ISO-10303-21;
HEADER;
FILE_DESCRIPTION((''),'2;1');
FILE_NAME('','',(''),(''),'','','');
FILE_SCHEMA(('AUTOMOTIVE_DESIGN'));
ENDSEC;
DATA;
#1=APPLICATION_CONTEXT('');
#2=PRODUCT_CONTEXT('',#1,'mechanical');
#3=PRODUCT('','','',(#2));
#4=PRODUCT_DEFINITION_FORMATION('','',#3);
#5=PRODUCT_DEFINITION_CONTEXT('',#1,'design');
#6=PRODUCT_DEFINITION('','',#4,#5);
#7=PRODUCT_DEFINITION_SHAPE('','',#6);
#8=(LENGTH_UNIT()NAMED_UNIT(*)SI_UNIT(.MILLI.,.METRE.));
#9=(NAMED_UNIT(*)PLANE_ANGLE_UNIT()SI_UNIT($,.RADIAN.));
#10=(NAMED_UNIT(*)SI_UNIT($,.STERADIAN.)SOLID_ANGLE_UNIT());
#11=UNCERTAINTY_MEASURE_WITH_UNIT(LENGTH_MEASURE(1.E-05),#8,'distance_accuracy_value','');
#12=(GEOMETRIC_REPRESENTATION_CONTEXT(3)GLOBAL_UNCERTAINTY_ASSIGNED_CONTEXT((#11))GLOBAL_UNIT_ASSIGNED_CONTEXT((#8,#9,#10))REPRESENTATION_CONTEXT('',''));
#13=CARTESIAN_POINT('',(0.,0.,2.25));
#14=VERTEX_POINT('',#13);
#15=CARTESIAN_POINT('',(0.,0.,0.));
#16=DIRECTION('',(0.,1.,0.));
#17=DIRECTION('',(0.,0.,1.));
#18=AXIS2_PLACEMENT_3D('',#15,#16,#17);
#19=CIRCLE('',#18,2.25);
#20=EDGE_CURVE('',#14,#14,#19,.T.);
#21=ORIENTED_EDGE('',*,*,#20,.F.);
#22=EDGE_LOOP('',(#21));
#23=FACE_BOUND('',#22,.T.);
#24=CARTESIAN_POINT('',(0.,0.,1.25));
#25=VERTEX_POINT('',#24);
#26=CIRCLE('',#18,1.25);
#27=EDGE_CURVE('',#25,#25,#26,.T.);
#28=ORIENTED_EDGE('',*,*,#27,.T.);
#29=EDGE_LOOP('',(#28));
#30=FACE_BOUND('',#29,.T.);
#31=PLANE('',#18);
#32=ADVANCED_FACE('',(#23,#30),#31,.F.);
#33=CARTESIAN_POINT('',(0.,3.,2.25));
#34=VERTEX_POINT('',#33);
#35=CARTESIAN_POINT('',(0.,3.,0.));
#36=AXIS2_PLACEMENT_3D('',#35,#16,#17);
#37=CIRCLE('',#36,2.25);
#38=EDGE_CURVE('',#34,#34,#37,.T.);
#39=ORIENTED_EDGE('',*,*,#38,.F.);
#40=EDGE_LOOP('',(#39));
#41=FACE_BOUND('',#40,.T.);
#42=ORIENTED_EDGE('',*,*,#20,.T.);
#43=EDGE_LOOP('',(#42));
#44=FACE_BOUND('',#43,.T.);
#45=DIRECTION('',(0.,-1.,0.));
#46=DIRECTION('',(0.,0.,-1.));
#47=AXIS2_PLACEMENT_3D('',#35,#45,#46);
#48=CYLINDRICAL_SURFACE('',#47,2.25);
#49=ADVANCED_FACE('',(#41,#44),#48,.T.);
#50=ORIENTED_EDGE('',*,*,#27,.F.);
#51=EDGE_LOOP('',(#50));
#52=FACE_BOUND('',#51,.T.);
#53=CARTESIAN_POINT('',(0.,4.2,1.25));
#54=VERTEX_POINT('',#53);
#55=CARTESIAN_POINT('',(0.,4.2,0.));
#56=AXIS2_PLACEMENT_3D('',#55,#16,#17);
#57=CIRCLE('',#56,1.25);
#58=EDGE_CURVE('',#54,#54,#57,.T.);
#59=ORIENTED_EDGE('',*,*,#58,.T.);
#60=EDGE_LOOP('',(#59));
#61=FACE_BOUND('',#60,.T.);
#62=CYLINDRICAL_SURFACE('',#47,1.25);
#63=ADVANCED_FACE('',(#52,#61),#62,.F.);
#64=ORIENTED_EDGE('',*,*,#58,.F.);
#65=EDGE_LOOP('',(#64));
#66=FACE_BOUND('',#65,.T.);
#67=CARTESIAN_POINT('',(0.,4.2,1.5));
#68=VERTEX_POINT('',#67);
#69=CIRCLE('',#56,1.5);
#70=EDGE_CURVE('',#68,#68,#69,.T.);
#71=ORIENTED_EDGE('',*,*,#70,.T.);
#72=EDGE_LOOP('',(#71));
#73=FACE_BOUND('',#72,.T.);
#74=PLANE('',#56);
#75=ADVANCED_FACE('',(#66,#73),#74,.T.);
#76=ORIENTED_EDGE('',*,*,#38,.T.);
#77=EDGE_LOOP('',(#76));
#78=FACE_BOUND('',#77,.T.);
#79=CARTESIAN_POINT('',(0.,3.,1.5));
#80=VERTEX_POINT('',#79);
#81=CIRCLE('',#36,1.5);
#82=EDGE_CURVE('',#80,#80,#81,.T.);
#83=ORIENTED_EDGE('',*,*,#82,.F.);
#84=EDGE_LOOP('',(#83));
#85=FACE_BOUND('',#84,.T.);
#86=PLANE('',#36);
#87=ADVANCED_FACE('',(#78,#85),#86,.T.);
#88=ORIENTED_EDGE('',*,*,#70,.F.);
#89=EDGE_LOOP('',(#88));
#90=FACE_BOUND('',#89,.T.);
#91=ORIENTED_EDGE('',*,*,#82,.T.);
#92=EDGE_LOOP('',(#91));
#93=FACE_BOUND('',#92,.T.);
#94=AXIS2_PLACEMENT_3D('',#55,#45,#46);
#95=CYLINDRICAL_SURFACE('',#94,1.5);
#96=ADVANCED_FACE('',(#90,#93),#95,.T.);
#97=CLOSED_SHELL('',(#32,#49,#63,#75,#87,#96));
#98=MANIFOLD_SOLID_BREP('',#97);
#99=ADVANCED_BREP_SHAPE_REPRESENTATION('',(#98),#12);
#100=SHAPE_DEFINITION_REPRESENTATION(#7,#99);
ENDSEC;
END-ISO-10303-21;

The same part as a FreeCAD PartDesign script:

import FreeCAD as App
import Part
import Sketcher
Q = App.Units.Quantity

doc = App.newDocument("Part")
body = doc.addObject("PartDesign::Body", "Body")

sketch1 = doc.addObject("Sketcher::SketchObject", "Sketch")
body.addObject(sketch1)
sketch1.AttachmentSupport = (doc.XZ_Plane, [""])
sketch1.MapMode = "FlatFace"
sketch1.addGeometry([
    Part.Circle(App.Vector(0, 0, 0), App.Vector(0, 0, 1), 2.2),
    Part.Circle(App.Vector(0, 0, 0), App.Vector(0, 0, 1), 1.2),
], False)
sketch1.addConstraint([
    Sketcher.Constraint("Coincident", 0, 3, -1, 1),
    Sketcher.Constraint("Coincident", 1, 3, -1, 1),
    Sketcher.Constraint("Diameter", 0, Q("4.5 mm")),
    Sketcher.Constraint("Diameter", 1, Q("2.5 mm")),
])
pad1 = doc.addObject("PartDesign::Pad", "Pad")
body.addObject(pad1)
pad1.Profile = sketch1
pad1.Length = 3
pad1.Reversed = True

sketch2 = doc.addObject("Sketcher::SketchObject", "Sketch001")
body.addObject(sketch2)
sketch2.AttachmentSupport = (doc.XZ_Plane, [""])
sketch2.MapMode = "FlatFace"
sketch2.AttachmentOffset = App.Placement(App.Vector(0, 0, -3), App.Rotation())
sketch2.addGeometry([
    Part.Circle(App.Vector(0, 0, 0), App.Vector(0, 0, 1), 1.5),
    Part.Circle(App.Vector(0, 0, 0), App.Vector(0, 0, 1), 1.2),
], False)
sketch2.addConstraint([
    Sketcher.Constraint("Coincident", 0, 3, -1, 1),
    Sketcher.Constraint("Coincident", 1, 3, -1, 1),
    Sketcher.Constraint("Diameter", 0, Q("3 mm")),
    Sketcher.Constraint("Diameter", 1, Q("2.5 mm")),
])
pad2 = doc.addObject("PartDesign::Pad", "Pad001")
body.addObject(pad2)
pad2.Profile = sketch2
pad2.Length = 1.2
pad2.Reversed = True

doc.recompute()
